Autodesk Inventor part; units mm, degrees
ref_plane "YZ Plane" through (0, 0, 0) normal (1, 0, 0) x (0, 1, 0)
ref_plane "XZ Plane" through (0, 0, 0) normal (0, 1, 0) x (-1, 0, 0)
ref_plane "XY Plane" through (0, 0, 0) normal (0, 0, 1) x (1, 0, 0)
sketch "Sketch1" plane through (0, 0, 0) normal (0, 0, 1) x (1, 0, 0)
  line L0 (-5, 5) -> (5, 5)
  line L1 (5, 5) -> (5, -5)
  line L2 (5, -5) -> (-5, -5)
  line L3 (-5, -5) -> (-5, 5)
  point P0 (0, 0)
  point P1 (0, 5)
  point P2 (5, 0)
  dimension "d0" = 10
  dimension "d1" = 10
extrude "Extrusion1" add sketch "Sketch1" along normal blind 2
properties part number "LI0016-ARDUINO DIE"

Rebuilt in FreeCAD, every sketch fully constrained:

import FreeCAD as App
import Part
import Sketcher


def add_polygon(sketch, points):
    """Adds a closed chain of lines whose ends are joined by coincident constraints."""
    first, n = sketch.GeometryCount, len(points)
    for a, b in zip(points, points[1:] + points[:1]):
        sketch.addGeometry(Part.LineSegment(App.Vector(*a, 0), App.Vector(*b, 0)), False)
    for i in range(n):
        sketch.addConstraint(Sketcher.Constraint("Coincident", first + i, 2, first + (i + 1) % n, 1))

doc = App.newDocument("Part")
body = doc.addObject("PartDesign::Body", "Body")

# Sketch on XY plane
sketch1 = doc.addObject("Sketcher::SketchObject", "Sketch")
body.addObject(sketch1)
sketch1.AttachmentSupport = (doc.XY_Plane, [""])
sketch1.MapMode = "FlatFace"
add_polygon(sketch1, [(5, 5), (-5, 5), (-5, -5), (5, -5)])  # lines 0-3
sketch1.addConstraint(Sketcher.Constraint("Horizontal", 0))
sketch1.addConstraint(Sketcher.Constraint("Vertical", 1))
sketch1.addConstraint(Sketcher.Constraint("Horizontal", 2))
sketch1.addConstraint(Sketcher.Constraint("Vertical", 3))
sketch1.addConstraint(Sketcher.Constraint("Symmetric", 0, 2, 2, 2, -1, 1))
sketch1.addConstraint(Sketcher.Constraint("Equal", 2, 1))
sketch1.addConstraint(Sketcher.Constraint("DistanceX", 0, 2, 0, 1, 10.0))
pad1 = doc.addObject("PartDesign::Pad", "Pad")
body.addObject(pad1)
pad1.Profile = sketch1
pad1.Length = 2

doc.recompute()
